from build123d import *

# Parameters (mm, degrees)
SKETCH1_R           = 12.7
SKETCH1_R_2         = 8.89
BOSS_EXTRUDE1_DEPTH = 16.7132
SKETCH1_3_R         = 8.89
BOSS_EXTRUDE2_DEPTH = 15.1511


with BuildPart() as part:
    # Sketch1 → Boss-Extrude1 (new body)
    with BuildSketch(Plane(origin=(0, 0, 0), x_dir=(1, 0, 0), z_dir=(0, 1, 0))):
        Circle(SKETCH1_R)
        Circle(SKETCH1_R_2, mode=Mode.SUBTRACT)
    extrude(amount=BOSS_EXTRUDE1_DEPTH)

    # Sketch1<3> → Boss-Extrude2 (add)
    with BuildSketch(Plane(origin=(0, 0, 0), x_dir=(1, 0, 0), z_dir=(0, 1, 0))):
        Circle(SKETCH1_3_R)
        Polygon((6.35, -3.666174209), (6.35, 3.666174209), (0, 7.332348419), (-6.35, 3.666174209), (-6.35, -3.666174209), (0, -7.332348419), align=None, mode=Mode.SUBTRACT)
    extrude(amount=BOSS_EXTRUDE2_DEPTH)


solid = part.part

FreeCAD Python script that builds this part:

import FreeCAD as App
import Part
import Sketcher
from FreeCAD import Vector
Q = App.Units.Quantity

doc = App.newDocument("Part")
params = doc.addObject("Spreadsheet::Sheet", "Params")
for row, (alias, value) in enumerate([
    ("sketch1_diameter", "1 in"),
    ("sketch1_diameter2", "0.7 in"),
    ("pad1_length", "0.658 in"),
    ("sketch2_diameter", "0.7 in"),
    ("pad2_length", "0.5965 in"),
], start=1):
    params.set(f"A{row}", alias)
    params.set(f"B{row}", "=" + value)
    params.setAlias(f"B{row}", alias)

body = doc.addObject("PartDesign::Body", "Body")

sketch1 = body.newObject("Sketcher::SketchObject", "Sketch")
sketch1.AttachmentSupport = (doc.getObject("XZ_Plane"), [""])
sketch1.MapMode = "FlatFace"
sketch1.addGeometry([
    Part.Circle(Vector(0, 0, 0), Vector(0, 0, 1), 13),
    Part.Circle(Vector(0, 0, 0), Vector(0, 0, 1), 9),
], False)
sketch1.addConstraint([
    Sketcher.Constraint("Coincident", 0, 3, -1, 1),
    Sketcher.Constraint("Coincident", 1, 3, -1, 1),
    Sketcher.Constraint("Diameter", 0, Q("1 in")),
    Sketcher.Constraint("Diameter", 1, Q("0.7 in")),
])
sketch1.setExpression("Constraints[2]", "Params.sketch1_diameter")
sketch1.setExpression("Constraints[3]", "Params.sketch1_diameter2")
pad1 = body.newObject("PartDesign::Pad", "Pad")
pad1.Profile = sketch1
pad1.setExpression("Length", "Params.pad1_length")
pad1.Reversed = True

sketch2 = body.newObject("Sketcher::SketchObject", "Sketch001")
sketch2.AttachmentSupport = (doc.getObject("XZ_Plane"), [""])
sketch2.MapMode = "FlatFace"
sketch2.addGeometry([
    Part.Circle(Vector(0, 0, 0), Vector(0, 0, 1), 9),
    Part.LineSegment(Vector(6, -4, 0), Vector(6, 4, 0)),
    Part.LineSegment(Vector(6, 4, 0), Vector(0, 7, 0)),
    Part.LineSegment(Vector(0, 7, 0), Vector(-6, 4, 0)),
    Part.LineSegment(Vector(-6, 4, 0), Vector(-6, -4, 0)),
    Part.LineSegment(Vector(-6, -4, 0), Vector(0, -7, 0)),
    Part.LineSegment(Vector(0, -7, 0), Vector(6, -4, 0)),
], False)
sketch2.addConstraint([
    Sketcher.Constraint("Coincident", 1, 2, 2, 1),
    Sketcher.Constraint("Coincident", 2, 2, 3, 1),
    Sketcher.Constraint("Coincident", 3, 2, 4, 1),
    Sketcher.Constraint("Coincident", 4, 2, 5, 1),
    Sketcher.Constraint("Coincident", 5, 2, 6, 1),
    Sketcher.Constraint("Coincident", 6, 2, 1, 1),
    Sketcher.Constraint("Vertical", 1),
    Sketcher.Constraint("Vertical", 4),
    Sketcher.Constraint("Coincident", 0, 3, -1, 1),
    Sketcher.Constraint("Symmetric", 1, 2, 4, 2, -1, 1),
    Sketcher.Constraint("Symmetric", 2, 2, 5, 2, -1, 1),
    Sketcher.Constraint("PointOnObject", 2, 2, -2),
    Sketcher.Constraint("Parallel", 3, 6),
    Sketcher.Constraint("Horizontal", 1, 2, 3, 2),
    Sketcher.Constraint("Diameter", 0, Q("0.7 in")),
    Sketcher.Constraint("Angle", 2, Q("150 deg")),
    Sketcher.Constraint("DistanceX", 3, 2, 1, 2, Q("0.5 in")),
    Sketcher.Constraint("DistanceY", 1, 1, 1, 2, Q("7.332348 mm")),
])
sketch2.setExpression("Constraints[14]", "Params.sketch2_diameter")
pad2 = body.newObject("PartDesign::Pad", "Pad001")
pad2.Profile = sketch2
pad2.setExpression("Length", "Params.pad2_length")
pad2.Reversed = True

doc.recompute()
